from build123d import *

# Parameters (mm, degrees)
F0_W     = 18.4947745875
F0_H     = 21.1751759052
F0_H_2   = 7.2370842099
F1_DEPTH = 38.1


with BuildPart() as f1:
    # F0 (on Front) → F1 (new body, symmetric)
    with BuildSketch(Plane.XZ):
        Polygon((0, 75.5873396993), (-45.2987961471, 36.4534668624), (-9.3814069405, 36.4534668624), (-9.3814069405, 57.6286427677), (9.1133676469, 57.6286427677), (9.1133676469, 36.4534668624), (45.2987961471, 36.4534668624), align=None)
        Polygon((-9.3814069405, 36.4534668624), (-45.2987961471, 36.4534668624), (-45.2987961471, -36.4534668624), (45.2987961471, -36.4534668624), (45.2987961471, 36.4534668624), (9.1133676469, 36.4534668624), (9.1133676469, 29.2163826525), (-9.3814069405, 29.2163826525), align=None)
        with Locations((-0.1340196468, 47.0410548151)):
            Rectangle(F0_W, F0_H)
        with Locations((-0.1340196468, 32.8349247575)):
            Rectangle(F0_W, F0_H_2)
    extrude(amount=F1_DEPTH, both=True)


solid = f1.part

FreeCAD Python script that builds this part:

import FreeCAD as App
import Part
import Sketcher

V = App.Vector
Q = App.Units.Quantity


def add_polygon(sketch, points):
    """Adds a closed chain of lines whose ends are joined by coincident constraints."""
    first, n = sketch.GeometryCount, len(points)
    for a, b in zip(points, points[1:] + points[:1]):
        sketch.addGeometry(Part.LineSegment(App.Vector(*a, 0), App.Vector(*b, 0)), False)
    for i in range(n):
        sketch.addConstraint(Sketcher.Constraint("Coincident", first + i, 2, first + (i + 1) % n, 1))

doc = App.newDocument("Part")
body = doc.addObject("PartDesign::Body", "Body")

# Sketch on XZ plane
sketch1 = body.newObject("Sketcher::SketchObject", "Sketch")
sketch1.AttachmentSupport = (doc.getObject("XZ_Plane"), [""])
sketch1.MapMode = "FlatFace"
add_polygon(sketch1, [(0, 76), (-45, 36), (-45, -36), (45, -36), (45, 36)])  # lines 0-4
sketch1.addConstraint(Sketcher.Constraint("Vertical", 1))
sketch1.addConstraint(Sketcher.Constraint("Horizontal", 2))
sketch1.addConstraint(Sketcher.Constraint("Vertical", 3))
sketch1.addConstraint(Sketcher.Constraint("Symmetric", 0, 2, 2, 2, -1, 1))
sketch1.addConstraint(Sketcher.Constraint("PointOnObject", 4, 2, -2))
sketch1.addConstraint(Sketcher.Constraint("Horizontal", 0, 2, 3, 2))
sketch1.addConstraint(Sketcher.Constraint("Distance", 0, Q("59.861849 mm")))
sketch1.addConstraint(Sketcher.Constraint("DistanceX", 2, 1, 2, 2, Q("90.597592 mm")))
sketch1.addConstraint(Sketcher.Constraint("DistanceY", 1, 2, 1, 1, Q("72.906934 mm")))
pad1 = body.newObject("PartDesign::Pad", "Pad")
pad1.Profile = sketch1
pad1.Length = Q("3 in")
pad1.Midplane = True

doc.recompute()
